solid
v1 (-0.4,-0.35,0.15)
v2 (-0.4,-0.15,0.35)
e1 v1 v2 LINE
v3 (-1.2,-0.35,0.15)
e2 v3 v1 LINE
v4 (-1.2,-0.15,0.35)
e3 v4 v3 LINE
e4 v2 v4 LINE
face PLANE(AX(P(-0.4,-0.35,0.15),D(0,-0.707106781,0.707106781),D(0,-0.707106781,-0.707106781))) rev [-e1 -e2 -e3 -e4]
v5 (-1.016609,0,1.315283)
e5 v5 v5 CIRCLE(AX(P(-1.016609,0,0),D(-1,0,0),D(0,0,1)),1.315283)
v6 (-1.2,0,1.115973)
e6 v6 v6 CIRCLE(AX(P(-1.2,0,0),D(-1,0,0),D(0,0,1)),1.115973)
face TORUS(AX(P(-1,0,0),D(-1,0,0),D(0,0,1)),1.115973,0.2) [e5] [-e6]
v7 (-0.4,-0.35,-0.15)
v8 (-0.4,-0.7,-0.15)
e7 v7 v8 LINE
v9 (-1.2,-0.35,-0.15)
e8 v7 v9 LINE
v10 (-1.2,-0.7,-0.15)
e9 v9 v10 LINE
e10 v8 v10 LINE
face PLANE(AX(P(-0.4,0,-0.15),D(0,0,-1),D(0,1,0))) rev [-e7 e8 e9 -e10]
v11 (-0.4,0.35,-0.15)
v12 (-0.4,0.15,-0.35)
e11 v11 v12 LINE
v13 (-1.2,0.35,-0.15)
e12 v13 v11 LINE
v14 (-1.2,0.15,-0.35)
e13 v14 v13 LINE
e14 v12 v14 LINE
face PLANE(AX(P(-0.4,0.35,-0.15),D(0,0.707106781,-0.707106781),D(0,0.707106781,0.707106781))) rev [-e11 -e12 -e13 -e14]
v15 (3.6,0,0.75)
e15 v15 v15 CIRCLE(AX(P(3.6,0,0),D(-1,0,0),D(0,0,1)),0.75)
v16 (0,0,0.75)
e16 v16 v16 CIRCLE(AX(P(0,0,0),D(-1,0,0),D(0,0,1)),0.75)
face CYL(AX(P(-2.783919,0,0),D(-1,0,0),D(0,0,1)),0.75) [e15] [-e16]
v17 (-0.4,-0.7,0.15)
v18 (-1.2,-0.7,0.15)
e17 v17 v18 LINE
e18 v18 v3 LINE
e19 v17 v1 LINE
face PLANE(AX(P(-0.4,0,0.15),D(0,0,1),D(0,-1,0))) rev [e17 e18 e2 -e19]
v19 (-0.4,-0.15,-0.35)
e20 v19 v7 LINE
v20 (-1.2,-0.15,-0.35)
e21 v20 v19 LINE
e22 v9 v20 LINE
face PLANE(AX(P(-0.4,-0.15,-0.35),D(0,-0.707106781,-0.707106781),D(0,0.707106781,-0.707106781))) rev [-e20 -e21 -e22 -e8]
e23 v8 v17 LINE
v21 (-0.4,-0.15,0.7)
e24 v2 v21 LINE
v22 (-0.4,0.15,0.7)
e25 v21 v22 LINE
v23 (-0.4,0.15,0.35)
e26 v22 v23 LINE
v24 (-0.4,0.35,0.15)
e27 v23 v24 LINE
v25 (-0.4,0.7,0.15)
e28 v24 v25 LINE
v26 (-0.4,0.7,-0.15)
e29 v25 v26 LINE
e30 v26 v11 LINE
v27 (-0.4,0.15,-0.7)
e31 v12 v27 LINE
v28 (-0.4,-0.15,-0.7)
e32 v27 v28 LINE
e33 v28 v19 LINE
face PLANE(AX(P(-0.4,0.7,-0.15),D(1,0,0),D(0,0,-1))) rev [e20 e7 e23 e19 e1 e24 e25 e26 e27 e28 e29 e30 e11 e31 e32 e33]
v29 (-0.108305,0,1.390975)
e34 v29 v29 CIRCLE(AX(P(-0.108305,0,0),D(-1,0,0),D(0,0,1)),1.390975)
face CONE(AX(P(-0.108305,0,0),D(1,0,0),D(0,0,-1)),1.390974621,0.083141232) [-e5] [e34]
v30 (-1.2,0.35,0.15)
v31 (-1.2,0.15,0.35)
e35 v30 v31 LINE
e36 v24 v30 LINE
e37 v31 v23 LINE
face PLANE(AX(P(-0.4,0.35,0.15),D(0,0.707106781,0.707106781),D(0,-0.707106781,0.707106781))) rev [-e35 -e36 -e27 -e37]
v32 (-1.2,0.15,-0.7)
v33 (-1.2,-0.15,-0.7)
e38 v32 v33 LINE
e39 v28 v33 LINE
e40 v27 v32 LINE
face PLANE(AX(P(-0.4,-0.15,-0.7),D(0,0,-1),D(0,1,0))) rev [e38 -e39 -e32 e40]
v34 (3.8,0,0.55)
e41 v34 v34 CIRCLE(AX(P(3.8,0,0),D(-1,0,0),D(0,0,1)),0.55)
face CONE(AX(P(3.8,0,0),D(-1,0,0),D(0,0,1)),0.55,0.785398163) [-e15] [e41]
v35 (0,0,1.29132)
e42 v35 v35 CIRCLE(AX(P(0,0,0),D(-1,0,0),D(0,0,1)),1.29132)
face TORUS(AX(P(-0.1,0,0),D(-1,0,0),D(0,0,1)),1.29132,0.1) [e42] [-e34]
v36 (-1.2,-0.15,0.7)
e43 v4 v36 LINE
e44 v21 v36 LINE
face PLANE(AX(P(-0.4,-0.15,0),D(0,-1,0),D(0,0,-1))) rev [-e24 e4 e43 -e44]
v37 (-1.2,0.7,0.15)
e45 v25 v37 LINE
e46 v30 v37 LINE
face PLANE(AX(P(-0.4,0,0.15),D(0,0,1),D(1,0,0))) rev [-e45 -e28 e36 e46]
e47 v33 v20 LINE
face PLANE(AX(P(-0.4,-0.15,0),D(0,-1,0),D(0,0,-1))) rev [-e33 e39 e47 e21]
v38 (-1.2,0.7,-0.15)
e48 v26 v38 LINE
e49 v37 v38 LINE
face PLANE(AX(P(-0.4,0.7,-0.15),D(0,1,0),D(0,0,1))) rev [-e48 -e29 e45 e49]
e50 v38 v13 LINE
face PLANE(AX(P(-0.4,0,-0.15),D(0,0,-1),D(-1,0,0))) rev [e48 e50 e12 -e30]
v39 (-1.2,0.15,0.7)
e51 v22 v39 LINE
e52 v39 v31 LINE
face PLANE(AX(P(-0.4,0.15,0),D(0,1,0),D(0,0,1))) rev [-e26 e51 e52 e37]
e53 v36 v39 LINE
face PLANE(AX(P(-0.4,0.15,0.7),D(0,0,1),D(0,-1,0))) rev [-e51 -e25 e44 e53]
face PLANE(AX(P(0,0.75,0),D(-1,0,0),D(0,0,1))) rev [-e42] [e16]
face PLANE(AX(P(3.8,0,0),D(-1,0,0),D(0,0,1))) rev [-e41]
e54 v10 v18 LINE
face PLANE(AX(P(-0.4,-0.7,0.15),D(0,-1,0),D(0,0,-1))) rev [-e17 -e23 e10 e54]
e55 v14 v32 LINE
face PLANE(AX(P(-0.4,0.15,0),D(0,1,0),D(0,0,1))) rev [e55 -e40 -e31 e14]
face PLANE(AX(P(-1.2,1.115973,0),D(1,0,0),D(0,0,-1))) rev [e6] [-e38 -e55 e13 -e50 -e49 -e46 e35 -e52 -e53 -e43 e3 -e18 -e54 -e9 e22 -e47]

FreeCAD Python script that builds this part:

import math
import FreeCAD as App
import Part
import Sketcher
from FreeCAD import Vector
Q = App.Units.Quantity


def edges_at(feature, points):
    """Names of the edges that pass closest to the given points."""
    edges = feature.Shape.Edges
    near = lambda p: min(range(len(edges)), key=lambda i: edges[i].distToShape(Part.Vertex(*p))[0])
    return sorted({f"Edge{near(p) + 1}" for p in points})


def add_polygon(sketch, points):
    """Adds a closed chain of lines whose ends are joined by coincident constraints."""
    first, n = sketch.GeometryCount, len(points)
    for a, b in zip(points, points[1:] + points[:1]):
        sketch.addGeometry(Part.LineSegment(App.Vector(*a, 0), App.Vector(*b, 0)), False)
    for i in range(n):
        sketch.addConstraint(Sketcher.Constraint("Coincident", first + i, 2, first + (i + 1) % n, 1))

doc = App.newDocument("Part")
body = doc.addObject("PartDesign::Body", "Body")

sketch1 = body.newObject("Sketcher::SketchObject", "Sketch")
sketch1.AttachmentSupport = (doc.getObject("XY_Plane"), [""])
sketch1.MapMode = "FlatFace"
sketch1.addGeometry(Part.LineSegment(Vector(3.8, 0, 0), Vector(3.8, 0.55, 0)), False)
sketch1.addGeometry(Part.LineSegment(Vector(3.8, 0.55, 0), Vector(3.6, 0.75, 0)), False)
sketch1.addGeometry(Part.LineSegment(Vector(3.6, 0.75, 0), Vector(0, 0.75, 0)), False)
sketch1.addGeometry(Part.LineSegment(Vector(0, 0.75, 0), Vector(0, 1.29132, 0)), False)
sketch1.addGeometry(Part.ArcOfCircle(Part.Circle(Vector(-0.1, 1.29132, 0), Vector(0, 0, 1), 0.1), math.radians(-0.000001), math.radians(94.763642)), False)
sketch1.addGeometry(Part.LineSegment(Vector(-0.108305, 1.390975, 0), Vector(-1.016609, 1.315283, 0)), False)
sketch1.addGeometry(Part.ArcOfCircle(Part.Circle(Vector(-1, 1.115973, 0), Vector(0, 0, 1), 0.2), math.radians(94.763642), math.radians(179.999999)), False)
sketch1.addGeometry(Part.LineSegment(Vector(-1.2, 1.115973, 0), Vector(-1.2, 0, 0)), False)
sketch1.addGeometry(Part.LineSegment(Vector(-1.2, 0, 0), Vector(3.8, 0, 0)), False)
sketch1.addConstraint(Sketcher.Constraint("Coincident", 0, 2, 1, 1))
sketch1.addConstraint(Sketcher.Constraint("Coincident", 1, 2, 2, 1))
sketch1.addConstraint(Sketcher.Constraint("Coincident", 2, 2, 3, 1))
sketch1.addConstraint(Sketcher.Constraint("Tangent", 3, 2, 4, 1))
sketch1.addConstraint(Sketcher.Constraint("Tangent", 4, 2, 5, 1))
sketch1.addConstraint(Sketcher.Constraint("Tangent", 5, 2, 6, 1))
sketch1.addConstraint(Sketcher.Constraint("Tangent", 6, 2, 7, 1))
sketch1.addConstraint(Sketcher.Constraint("Coincident", 7, 2, 8, 1))
sketch1.addConstraint(Sketcher.Constraint("Coincident", 8, 2, 0, 1))
sketch1.addConstraint(Sketcher.Constraint("Vertical", 0))
sketch1.addConstraint(Sketcher.Constraint("Horizontal", 2))
sketch1.addConstraint(Sketcher.Constraint("Vertical", 3))
sketch1.addConstraint(Sketcher.Constraint("Vertical", 7))
sketch1.addConstraint(Sketcher.Constraint("Horizontal", 8))
sketch1.addConstraint(Sketcher.Constraint("PointOnObject", 2, 2, -2))
sketch1.addConstraint(Sketcher.Constraint("PointOnObject", 7, 2, -1))
sketch1.addConstraint(Sketcher.Constraint("Radius", 4, Q("0.1 mm")))
sketch1.addConstraint(Sketcher.Constraint("Radius", 6, Q("0.2 mm")))
sketch1.addConstraint(Sketcher.Constraint("DistanceX", 8, 1, 8, 2, Q("5 mm")))
sketch1.addConstraint(Sketcher.Constraint("Angle", 1, Q("135 deg")))
sketch1.addConstraint(Sketcher.Constraint("DistanceX", 2, 2, 2, 1, Q("3.6 mm")))
sketch1.addConstraint(Sketcher.Constraint("DistanceX", 6, 3, -1, 1, Q("1 mm")))
sketch1.addConstraint(Sketcher.Constraint("DistanceY", 0, 1, 0, 2, Q("0.55 mm")))
sketch1.addConstraint(Sketcher.Constraint("DistanceY", 6, 3, 4, 2, Q("0.275001 mm")))
sketch1.addConstraint(Sketcher.Constraint("DistanceY", 3, 1, 3, 2, Q("0.54132 mm")))
revolution = body.newObject("PartDesign::Revolution", "Revolution")
revolution.Profile = sketch1
revolution.ReferenceAxis = (sketch1, ["H_Axis"])
revolution.Angle = 360

sketch2 = body.newObject("Sketcher::SketchObject", "Sketch001")
sketch2.AttachmentSupport = (doc.getObject("YZ_Plane"), [""])
sketch2.MapMode = "FlatFace"
sketch2.AttachmentOffset = App.Placement(Vector(0, 0, -1.2), App.Rotation())
add_polygon(sketch2, [(0.7, -0.15), (0, -0.15), (0, 0.15), (0.7, 0.15)])
sketch2.addConstraint(Sketcher.Constraint("Horizontal", 0))
sketch2.addConstraint(Sketcher.Constraint("Vertical", 1))
sketch2.addConstraint(Sketcher.Constraint("Horizontal", 2))
sketch2.addConstraint(Sketcher.Constraint("Vertical", 3))
sketch2.addConstraint(Sketcher.Constraint("Symmetric", 0, 2, 1, 2, -1, 1))
sketch2.addConstraint(Sketcher.Constraint("DistanceX", 0, 2, 0, 1, Q("0.7 mm")))
sketch2.addConstraint(Sketcher.Constraint("DistanceY", 1, 1, 1, 2, Q("0.3 mm")))
pocket1 = body.newObject("PartDesign::Pocket", "Pocket")
pocket1.Profile = sketch2
pocket1.Length = 0.8
pocket1.Reversed = True
doc.recompute()

polarpattern = body.newObject("PartDesign::PolarPattern", "PolarPattern")
polarpattern.Originals = [pocket1]
polarpattern.Axis = (doc.getObject("X_Axis"), [""])
polarpattern.Angle = 360
polarpattern.Occurrences = 4
body.Tip = polarpattern
doc.recompute()

chamfer = body.newObject("PartDesign::Chamfer", "Chamfer")
chamfer.Base = (polarpattern, edges_at(polarpattern, [
    (-0.8, 0.15, -0.15),
    (-0.8, 0.15, 0.15),
    (-0.8, -0.15, -0.15),
    (-0.8, -0.15, 0.15),
]))
chamfer.Size = 0.2

doc.recompute()
